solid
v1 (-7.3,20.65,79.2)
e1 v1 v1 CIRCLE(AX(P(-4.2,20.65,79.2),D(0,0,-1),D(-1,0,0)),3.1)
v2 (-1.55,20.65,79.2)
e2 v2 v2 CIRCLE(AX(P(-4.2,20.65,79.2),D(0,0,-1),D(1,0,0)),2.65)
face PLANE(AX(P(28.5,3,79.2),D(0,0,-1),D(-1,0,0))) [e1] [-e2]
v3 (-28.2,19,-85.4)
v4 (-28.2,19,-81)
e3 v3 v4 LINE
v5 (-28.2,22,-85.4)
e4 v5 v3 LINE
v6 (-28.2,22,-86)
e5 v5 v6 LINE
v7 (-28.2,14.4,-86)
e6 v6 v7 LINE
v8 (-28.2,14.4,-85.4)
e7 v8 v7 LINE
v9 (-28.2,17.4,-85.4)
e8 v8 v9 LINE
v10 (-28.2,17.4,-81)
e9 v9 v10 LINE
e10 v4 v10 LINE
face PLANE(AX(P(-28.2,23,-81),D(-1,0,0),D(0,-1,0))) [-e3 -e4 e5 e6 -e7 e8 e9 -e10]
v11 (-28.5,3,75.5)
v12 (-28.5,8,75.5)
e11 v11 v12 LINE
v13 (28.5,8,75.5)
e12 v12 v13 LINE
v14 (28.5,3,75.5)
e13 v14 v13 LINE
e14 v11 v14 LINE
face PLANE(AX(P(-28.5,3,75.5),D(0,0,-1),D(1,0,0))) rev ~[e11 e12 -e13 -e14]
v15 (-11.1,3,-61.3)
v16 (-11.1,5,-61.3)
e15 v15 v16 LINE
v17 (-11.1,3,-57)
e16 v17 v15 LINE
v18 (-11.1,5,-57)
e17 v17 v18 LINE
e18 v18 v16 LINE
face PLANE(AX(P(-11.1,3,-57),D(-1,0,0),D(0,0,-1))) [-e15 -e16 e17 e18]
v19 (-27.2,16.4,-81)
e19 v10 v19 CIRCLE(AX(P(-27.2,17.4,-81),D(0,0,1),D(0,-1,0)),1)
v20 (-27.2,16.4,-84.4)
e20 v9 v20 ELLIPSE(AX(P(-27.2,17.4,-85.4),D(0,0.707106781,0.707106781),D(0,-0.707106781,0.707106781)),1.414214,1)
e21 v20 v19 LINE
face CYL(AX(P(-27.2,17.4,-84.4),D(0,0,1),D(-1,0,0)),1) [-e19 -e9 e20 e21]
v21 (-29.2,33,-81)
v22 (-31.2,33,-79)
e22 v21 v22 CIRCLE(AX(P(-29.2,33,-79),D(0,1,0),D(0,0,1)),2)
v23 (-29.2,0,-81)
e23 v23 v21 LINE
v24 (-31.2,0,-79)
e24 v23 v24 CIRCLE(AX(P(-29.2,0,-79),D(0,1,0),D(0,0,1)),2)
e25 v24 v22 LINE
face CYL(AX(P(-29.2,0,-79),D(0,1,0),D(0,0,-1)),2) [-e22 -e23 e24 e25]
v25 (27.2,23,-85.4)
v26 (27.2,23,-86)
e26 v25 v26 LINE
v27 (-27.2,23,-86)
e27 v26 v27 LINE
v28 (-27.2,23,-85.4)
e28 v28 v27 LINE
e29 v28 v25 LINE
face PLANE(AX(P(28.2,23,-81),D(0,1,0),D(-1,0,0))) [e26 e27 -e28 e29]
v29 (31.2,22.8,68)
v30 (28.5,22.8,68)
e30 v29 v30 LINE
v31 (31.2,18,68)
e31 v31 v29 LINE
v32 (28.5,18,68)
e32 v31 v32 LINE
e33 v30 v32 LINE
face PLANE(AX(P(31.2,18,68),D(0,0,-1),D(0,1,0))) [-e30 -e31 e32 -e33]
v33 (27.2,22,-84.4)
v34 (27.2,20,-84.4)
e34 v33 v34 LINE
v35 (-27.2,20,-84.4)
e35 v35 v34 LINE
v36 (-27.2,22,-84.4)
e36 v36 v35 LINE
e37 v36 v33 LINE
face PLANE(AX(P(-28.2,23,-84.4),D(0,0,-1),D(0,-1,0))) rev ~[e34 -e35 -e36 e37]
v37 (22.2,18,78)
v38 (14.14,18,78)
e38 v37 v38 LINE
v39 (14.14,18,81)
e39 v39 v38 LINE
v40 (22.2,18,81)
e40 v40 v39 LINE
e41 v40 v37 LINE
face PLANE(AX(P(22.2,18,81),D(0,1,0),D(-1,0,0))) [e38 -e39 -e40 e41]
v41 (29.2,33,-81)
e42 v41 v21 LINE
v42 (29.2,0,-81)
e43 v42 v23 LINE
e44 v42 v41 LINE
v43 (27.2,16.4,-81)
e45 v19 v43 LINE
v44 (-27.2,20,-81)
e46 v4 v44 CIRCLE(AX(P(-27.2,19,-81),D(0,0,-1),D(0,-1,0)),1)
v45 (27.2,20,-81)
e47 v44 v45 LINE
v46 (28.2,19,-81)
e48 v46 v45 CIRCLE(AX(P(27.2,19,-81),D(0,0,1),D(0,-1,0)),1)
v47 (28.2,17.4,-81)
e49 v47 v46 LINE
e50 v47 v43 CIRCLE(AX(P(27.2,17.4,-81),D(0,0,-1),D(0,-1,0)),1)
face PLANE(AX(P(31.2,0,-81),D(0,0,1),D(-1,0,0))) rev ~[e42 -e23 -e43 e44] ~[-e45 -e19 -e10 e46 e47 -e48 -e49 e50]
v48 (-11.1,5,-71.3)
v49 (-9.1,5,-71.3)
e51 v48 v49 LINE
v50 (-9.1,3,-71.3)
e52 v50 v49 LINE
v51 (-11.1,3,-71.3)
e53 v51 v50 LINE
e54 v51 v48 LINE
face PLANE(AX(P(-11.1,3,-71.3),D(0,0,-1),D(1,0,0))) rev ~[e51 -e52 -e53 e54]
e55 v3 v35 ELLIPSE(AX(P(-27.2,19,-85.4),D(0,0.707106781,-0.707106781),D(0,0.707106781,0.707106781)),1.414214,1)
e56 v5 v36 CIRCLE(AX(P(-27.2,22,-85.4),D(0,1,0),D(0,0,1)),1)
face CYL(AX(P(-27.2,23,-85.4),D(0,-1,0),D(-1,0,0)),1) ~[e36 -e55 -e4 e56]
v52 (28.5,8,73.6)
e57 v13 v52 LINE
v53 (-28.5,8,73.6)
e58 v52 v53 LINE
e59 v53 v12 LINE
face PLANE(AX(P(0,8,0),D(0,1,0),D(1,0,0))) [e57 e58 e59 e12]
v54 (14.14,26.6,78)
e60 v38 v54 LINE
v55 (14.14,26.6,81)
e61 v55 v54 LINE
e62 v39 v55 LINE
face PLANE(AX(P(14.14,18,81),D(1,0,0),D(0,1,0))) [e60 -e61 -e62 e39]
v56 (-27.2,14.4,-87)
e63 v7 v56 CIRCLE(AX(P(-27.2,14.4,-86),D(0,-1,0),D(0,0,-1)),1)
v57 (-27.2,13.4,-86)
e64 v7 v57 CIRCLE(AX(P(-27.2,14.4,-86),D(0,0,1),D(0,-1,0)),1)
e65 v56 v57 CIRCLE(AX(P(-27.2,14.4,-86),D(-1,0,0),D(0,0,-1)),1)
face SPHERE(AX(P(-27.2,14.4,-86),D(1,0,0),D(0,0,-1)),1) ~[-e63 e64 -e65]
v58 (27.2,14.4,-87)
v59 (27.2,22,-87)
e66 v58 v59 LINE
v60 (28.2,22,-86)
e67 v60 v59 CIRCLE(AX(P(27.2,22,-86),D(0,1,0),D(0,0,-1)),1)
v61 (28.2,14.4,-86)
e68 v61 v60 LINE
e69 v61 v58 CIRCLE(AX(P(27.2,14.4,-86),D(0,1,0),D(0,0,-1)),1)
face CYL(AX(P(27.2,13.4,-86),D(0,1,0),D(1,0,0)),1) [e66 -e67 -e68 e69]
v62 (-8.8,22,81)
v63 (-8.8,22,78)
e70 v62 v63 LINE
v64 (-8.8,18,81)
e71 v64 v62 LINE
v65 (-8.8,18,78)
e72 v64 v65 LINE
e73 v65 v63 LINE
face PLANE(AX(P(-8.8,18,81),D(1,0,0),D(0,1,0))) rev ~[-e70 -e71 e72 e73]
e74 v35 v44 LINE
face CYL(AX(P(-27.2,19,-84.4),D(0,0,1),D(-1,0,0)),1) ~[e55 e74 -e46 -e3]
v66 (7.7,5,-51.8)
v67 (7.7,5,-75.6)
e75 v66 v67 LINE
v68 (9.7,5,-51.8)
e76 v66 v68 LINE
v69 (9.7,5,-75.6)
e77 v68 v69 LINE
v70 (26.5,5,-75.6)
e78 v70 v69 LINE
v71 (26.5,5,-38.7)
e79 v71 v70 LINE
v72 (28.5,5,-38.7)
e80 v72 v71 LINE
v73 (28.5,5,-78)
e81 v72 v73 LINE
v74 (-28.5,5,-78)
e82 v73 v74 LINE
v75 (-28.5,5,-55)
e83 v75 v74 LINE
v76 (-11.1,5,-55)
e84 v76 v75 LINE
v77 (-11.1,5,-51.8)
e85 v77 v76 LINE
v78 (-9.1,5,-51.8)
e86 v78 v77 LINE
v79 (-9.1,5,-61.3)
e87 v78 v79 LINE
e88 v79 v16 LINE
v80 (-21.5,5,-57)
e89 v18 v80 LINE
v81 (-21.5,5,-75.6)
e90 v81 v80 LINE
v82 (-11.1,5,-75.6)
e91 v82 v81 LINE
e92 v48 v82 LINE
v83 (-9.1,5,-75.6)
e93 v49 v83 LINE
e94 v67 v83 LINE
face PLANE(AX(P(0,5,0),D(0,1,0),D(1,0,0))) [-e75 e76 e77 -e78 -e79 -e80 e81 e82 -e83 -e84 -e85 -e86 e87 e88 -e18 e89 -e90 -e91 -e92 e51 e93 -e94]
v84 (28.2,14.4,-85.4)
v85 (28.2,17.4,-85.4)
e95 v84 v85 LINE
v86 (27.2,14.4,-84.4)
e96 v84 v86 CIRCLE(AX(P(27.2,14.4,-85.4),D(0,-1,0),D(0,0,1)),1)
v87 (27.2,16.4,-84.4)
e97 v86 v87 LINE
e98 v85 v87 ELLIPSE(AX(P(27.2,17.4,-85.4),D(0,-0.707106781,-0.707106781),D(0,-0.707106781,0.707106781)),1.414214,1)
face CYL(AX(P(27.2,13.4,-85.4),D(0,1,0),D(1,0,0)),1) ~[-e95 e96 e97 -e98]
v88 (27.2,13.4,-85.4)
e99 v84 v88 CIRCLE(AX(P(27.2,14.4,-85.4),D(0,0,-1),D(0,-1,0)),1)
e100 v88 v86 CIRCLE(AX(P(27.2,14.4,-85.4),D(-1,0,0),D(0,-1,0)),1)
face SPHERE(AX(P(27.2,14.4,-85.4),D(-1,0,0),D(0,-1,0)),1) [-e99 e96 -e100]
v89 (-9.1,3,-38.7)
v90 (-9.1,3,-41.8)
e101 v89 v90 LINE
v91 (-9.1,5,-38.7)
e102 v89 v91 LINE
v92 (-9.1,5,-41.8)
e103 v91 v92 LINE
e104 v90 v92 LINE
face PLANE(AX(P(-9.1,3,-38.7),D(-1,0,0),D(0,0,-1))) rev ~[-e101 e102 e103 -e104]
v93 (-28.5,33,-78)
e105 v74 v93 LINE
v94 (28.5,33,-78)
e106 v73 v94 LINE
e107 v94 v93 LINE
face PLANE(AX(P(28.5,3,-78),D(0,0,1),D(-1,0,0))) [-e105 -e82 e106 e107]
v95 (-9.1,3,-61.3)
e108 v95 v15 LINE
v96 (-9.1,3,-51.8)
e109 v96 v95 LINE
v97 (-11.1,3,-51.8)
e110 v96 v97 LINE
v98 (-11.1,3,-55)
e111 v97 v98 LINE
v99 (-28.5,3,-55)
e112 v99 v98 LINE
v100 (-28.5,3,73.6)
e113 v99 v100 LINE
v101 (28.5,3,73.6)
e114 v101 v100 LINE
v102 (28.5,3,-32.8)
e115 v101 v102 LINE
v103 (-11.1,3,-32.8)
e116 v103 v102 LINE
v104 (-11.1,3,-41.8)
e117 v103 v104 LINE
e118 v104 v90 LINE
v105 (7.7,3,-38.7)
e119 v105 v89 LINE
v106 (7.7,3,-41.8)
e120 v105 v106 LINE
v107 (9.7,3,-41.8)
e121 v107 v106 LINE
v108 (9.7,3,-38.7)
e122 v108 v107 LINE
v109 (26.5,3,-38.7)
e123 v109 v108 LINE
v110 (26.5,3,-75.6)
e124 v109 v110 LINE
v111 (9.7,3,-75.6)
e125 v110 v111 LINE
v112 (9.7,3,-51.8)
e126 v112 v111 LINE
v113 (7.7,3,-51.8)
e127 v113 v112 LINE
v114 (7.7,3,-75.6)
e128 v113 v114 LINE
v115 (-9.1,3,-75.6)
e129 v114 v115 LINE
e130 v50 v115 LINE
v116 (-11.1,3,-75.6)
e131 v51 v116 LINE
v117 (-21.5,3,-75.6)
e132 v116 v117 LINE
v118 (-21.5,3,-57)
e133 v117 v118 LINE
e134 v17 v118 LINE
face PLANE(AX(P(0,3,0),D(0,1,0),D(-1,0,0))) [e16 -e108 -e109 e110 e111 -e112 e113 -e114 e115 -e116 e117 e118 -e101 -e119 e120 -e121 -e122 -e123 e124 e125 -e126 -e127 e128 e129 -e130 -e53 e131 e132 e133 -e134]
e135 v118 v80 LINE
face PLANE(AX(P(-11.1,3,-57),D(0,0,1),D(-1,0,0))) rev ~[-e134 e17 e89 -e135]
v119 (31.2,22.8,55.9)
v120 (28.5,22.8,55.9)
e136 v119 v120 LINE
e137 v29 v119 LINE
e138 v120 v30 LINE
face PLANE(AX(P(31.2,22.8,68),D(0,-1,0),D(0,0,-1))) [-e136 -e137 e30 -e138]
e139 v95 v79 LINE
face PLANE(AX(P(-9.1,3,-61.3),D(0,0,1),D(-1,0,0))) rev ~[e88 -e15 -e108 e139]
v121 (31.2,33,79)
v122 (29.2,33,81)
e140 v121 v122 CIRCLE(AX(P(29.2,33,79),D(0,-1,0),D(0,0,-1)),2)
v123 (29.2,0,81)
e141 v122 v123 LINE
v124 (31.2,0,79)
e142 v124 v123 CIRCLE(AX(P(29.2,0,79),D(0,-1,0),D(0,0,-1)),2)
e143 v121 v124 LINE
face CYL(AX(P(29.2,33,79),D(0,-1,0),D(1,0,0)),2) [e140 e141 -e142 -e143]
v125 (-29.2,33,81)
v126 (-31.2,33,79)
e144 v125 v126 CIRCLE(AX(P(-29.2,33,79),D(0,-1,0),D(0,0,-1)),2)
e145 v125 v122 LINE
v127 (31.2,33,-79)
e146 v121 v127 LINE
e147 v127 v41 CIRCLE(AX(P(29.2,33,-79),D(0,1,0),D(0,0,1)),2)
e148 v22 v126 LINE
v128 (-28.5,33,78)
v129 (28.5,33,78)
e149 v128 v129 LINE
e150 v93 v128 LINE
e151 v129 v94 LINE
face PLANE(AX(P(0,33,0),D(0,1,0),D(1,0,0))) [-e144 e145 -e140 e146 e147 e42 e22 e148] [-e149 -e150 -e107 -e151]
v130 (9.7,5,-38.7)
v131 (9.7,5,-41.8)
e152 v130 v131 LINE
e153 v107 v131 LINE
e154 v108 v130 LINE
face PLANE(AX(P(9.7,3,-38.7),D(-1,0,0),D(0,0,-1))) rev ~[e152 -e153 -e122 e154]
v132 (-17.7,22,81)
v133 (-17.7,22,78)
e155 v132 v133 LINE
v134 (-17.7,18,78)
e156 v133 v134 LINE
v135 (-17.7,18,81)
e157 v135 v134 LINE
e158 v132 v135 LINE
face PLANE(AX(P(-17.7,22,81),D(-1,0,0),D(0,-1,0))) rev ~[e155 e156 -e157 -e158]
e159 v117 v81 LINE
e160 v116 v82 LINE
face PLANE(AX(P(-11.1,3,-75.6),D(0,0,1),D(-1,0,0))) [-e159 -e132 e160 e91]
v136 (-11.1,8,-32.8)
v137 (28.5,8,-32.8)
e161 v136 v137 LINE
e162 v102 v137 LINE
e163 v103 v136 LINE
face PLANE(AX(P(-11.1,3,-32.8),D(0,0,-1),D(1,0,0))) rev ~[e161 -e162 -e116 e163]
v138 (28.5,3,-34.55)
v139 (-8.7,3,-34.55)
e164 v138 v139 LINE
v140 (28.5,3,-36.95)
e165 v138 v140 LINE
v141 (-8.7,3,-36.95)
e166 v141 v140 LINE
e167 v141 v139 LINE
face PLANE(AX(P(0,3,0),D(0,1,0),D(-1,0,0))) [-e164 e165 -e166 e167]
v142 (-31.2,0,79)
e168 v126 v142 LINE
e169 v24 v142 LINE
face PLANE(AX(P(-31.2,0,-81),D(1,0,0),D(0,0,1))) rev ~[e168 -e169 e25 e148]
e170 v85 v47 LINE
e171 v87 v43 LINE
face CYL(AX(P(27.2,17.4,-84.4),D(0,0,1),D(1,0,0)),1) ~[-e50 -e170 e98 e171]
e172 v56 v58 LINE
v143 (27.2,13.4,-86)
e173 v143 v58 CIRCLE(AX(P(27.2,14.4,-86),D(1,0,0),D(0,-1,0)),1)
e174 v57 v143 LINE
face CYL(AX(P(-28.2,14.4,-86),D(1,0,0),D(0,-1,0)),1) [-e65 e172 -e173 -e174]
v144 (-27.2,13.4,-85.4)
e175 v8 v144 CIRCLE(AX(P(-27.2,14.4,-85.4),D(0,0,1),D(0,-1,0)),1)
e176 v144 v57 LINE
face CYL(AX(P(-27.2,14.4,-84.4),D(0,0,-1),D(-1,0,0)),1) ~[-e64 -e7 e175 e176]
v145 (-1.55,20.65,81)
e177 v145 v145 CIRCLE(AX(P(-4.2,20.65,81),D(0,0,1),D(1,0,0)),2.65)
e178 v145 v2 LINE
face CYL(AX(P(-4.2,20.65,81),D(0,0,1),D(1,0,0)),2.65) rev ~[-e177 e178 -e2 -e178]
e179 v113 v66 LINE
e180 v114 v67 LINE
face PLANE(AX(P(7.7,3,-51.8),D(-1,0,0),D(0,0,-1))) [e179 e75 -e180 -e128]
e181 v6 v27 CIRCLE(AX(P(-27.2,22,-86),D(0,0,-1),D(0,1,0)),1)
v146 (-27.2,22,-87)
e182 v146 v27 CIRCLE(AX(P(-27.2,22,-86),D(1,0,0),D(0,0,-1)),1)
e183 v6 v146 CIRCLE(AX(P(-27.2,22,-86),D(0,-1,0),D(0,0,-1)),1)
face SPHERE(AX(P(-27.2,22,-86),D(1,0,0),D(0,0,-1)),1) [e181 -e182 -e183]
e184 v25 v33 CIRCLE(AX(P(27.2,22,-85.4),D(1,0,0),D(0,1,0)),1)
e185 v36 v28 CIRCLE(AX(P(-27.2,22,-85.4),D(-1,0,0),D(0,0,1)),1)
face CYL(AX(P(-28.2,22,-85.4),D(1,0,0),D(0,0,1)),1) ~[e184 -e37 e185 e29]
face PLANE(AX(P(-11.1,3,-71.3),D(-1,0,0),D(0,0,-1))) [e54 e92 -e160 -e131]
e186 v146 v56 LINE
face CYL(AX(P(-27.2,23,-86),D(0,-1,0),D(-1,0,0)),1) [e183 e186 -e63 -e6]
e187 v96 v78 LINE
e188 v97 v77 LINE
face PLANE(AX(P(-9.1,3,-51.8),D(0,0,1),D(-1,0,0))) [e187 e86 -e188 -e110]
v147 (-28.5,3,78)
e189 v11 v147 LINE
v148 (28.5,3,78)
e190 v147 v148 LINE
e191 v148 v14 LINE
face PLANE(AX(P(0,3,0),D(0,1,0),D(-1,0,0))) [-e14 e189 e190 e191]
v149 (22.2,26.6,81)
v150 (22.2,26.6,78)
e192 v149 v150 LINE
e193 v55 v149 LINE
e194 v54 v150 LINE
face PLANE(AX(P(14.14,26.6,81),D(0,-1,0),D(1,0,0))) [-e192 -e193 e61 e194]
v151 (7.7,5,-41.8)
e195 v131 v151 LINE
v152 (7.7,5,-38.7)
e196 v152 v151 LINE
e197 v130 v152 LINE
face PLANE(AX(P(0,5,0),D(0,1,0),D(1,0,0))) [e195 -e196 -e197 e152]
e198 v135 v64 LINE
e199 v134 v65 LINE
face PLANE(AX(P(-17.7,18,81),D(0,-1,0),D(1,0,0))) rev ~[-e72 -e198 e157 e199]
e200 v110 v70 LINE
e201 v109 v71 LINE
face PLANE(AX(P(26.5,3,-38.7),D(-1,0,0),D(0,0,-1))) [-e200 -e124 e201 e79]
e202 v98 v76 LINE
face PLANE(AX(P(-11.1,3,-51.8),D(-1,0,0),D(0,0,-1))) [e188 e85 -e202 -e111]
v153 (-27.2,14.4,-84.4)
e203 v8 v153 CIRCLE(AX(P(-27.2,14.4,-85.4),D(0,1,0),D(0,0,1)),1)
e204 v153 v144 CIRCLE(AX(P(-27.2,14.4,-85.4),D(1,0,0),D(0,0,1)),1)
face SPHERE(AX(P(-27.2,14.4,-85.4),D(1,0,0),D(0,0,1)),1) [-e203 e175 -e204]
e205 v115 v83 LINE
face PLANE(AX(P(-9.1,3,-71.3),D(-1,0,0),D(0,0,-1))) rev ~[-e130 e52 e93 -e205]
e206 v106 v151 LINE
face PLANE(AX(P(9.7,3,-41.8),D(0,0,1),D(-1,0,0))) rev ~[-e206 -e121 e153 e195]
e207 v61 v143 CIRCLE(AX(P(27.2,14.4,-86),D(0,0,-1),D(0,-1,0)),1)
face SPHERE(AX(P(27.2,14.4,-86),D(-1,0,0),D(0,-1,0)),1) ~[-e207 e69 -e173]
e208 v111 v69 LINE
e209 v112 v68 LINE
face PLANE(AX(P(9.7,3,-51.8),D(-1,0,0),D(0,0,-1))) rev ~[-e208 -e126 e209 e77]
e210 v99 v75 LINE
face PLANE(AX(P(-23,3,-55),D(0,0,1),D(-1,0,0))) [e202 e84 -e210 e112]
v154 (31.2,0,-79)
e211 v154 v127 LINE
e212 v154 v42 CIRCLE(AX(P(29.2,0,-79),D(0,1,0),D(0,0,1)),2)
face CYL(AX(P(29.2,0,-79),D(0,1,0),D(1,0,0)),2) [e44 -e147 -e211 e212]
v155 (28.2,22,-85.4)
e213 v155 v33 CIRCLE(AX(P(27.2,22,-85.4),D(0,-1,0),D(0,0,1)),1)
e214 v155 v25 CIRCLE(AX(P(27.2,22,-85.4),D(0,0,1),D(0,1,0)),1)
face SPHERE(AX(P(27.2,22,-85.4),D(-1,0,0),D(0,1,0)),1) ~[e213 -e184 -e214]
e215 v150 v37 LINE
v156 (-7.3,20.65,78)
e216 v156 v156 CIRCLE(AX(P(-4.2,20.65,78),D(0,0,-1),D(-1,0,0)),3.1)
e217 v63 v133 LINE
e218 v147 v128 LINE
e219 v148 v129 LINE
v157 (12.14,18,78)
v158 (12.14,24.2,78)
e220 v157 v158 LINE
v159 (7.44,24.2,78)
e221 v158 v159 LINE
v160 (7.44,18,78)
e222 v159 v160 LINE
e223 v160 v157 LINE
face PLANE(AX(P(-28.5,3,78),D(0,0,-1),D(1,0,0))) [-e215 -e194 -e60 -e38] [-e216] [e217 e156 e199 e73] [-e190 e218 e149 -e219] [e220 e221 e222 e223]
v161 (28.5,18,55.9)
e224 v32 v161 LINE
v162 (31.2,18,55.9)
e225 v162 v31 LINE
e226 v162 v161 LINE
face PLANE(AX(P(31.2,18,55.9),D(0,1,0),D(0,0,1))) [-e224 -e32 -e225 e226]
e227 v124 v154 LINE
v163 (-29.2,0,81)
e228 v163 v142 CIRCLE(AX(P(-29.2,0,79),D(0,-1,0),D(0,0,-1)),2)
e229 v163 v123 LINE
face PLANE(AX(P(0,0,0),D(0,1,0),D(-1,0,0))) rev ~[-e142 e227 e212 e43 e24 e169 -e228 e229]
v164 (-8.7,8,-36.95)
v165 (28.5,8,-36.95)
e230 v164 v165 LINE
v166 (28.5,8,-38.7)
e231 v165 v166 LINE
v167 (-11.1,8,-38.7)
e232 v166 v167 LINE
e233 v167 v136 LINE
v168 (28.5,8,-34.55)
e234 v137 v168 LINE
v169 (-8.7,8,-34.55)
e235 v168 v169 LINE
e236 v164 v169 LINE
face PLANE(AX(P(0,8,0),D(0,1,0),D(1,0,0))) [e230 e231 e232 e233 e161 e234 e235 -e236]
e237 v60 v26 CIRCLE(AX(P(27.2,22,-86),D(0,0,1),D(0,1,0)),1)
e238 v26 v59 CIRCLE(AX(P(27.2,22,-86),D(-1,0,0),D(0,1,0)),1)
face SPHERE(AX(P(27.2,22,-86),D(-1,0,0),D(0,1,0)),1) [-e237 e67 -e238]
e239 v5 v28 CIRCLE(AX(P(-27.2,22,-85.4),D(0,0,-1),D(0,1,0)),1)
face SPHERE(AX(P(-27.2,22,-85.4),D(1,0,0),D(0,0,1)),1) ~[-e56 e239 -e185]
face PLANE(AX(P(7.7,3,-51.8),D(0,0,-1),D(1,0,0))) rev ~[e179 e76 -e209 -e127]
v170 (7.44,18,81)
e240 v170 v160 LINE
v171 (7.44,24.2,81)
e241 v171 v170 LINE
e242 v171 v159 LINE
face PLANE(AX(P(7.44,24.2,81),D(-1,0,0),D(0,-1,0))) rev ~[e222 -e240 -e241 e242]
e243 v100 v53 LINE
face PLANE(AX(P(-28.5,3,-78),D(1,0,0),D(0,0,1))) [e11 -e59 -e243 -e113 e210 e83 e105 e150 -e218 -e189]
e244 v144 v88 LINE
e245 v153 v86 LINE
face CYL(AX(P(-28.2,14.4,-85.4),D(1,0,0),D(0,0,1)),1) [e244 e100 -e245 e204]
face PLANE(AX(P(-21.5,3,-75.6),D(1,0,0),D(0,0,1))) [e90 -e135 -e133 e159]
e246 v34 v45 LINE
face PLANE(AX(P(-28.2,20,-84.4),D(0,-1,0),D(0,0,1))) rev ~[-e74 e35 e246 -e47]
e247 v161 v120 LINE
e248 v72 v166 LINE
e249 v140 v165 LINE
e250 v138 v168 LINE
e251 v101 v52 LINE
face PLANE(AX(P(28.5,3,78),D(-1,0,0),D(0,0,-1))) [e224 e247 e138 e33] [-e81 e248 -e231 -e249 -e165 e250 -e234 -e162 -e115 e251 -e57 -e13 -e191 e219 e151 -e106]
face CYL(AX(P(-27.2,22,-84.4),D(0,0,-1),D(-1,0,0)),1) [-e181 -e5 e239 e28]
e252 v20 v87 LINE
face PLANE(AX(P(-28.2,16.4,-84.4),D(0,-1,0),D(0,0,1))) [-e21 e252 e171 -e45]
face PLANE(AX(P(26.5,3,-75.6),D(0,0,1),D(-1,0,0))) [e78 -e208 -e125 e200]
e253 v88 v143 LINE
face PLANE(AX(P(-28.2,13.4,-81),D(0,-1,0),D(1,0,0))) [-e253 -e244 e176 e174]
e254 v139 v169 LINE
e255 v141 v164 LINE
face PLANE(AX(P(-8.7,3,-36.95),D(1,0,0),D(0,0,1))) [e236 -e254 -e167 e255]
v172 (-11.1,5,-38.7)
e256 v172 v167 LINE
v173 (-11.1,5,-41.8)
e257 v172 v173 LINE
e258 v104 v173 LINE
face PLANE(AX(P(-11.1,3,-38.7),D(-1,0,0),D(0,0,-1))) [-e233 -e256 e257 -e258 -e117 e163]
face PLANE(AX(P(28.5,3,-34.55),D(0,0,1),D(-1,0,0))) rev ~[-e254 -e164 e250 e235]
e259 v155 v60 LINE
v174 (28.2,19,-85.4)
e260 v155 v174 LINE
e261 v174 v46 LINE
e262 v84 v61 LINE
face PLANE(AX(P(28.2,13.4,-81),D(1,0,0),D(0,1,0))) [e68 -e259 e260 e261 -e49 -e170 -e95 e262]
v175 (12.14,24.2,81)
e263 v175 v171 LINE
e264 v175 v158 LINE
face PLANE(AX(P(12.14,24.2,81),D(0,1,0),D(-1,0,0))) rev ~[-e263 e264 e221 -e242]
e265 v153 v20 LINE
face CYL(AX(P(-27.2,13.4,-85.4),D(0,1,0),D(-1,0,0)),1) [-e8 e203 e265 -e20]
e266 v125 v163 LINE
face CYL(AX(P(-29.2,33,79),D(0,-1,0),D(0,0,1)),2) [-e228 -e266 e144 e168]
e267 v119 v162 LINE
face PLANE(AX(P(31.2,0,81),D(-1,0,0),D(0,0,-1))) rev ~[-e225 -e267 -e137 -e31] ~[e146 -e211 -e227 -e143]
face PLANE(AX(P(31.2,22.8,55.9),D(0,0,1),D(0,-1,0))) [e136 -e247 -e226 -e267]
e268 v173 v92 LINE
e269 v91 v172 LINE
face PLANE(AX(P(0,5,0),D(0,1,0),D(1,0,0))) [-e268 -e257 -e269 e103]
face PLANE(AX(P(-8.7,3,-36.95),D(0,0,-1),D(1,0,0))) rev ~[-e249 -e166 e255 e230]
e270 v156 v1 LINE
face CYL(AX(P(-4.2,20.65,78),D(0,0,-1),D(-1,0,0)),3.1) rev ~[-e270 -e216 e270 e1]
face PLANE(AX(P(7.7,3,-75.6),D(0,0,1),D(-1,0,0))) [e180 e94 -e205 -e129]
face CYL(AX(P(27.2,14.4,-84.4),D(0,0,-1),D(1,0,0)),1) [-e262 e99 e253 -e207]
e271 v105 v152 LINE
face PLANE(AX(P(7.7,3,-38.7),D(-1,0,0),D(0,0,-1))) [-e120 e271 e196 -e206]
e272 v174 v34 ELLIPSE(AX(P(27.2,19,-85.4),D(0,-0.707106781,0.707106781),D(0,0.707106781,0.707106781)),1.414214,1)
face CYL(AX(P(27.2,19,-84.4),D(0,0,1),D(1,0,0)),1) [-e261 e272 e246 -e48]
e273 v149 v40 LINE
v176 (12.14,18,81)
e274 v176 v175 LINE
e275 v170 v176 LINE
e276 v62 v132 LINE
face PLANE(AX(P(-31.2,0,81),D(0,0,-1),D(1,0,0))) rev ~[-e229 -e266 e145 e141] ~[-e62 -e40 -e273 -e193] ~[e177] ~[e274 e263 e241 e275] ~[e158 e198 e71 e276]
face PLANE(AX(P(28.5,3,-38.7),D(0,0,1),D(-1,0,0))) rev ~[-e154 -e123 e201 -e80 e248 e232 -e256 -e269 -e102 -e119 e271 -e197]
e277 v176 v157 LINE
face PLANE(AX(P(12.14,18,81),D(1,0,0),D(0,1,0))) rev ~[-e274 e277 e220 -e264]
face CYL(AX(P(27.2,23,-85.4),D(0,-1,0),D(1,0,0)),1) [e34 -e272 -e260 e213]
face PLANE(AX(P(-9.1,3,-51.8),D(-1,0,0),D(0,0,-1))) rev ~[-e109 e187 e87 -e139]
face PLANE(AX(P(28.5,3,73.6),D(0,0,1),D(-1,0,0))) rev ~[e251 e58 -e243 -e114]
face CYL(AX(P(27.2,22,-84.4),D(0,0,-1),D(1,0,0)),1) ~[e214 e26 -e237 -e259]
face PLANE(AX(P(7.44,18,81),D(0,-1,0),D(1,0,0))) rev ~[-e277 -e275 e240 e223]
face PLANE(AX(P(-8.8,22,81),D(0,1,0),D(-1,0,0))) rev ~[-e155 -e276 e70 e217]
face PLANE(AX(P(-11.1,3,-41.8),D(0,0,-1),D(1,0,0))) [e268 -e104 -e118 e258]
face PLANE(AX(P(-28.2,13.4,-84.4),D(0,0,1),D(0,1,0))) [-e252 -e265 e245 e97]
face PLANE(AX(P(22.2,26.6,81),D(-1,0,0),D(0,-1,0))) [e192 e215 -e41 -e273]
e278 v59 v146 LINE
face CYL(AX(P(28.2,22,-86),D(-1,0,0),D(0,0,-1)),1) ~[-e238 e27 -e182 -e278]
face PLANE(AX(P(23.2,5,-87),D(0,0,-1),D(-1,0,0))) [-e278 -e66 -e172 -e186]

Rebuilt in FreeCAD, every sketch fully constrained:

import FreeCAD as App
import Part
import Sketcher
Q = App.Units.Quantity


def edges_at(feature, points):
    """Names of the edges that pass closest to the given points."""
    edges = feature.Shape.Edges
    near = lambda p: min(range(len(edges)), key=lambda i: edges[i].distToShape(Part.Vertex(*p))[0])
    return sorted({f"Edge{near(p) + 1}" for p in points})


def add_polygon(sketch, points):
    """Adds a closed chain of lines whose ends are joined by coincident constraints."""
    first, n = sketch.GeometryCount, len(points)
    for a, b in zip(points, points[1:] + points[:1]):
        sketch.addGeometry(Part.LineSegment(App.Vector(*a, 0), App.Vector(*b, 0)), False)
    for i in range(n):
        sketch.addConstraint(Sketcher.Constraint("Coincident", first + i, 2, first + (i + 1) % n, 1))

doc = App.newDocument("Part")
body = doc.addObject("PartDesign::Body", "Body")

sketch1 = body.newObject("Sketcher::SketchObject", "Sketch")
sketch1.AttachmentSupport = (doc.getObject("XZ_Plane"), [""])
sketch1.MapMode = "FlatFace"
add_polygon(sketch1, [(31, 81), (31, -81), (-31, -81), (-31, 81)])
sketch1.addConstraint([
    Sketcher.Constraint("Vertical", 0),
    Sketcher.Constraint("Horizontal", 1),
    Sketcher.Constraint("Vertical", 2),
    Sketcher.Constraint("Horizontal", 3),
    Sketcher.Constraint("Symmetric", 0, 2, 2, 2, -1, 1),
    Sketcher.Constraint("DistanceY", 0, 2, 0, 1, Q("162 mm")),
    Sketcher.Constraint("DistanceX", 1, 2, 1, 1, Q("62.4 mm")),
])
pad1 = body.newObject("PartDesign::Pad", "Pad")
pad1.Profile = sketch1
pad1.Length = 3
pad1.Reversed = True

sketch2 = body.newObject("Sketcher::SketchObject", "Sketch001")
sketch2.AttachmentSupport = (doc.getObject("XZ_Plane"), [""])
sketch2.MapMode = "FlatFace"
sketch2.AttachmentOffset = App.Placement(App.Vector(0, 0, -3), App.Rotation())
add_polygon(sketch2, [(31, -81), (-31, -81), (-31, 81), (31, 81)])
add_polygon(sketch2, [(-28, -78), (28, -78), (28, 78), (-28, 78)])
sketch2.addConstraint([
    Sketcher.Constraint("Horizontal", 0),
    Sketcher.Constraint("Vertical", 1),
    Sketcher.Constraint("Horizontal", 2),
    Sketcher.Constraint("Vertical", 3),
    Sketcher.Constraint("Horizontal", 4),
    Sketcher.Constraint("Vertical", 5),
    Sketcher.Constraint("Horizontal", 6),
    Sketcher.Constraint("Vertical", 7),
    Sketcher.Constraint("Symmetric", 0, 2, 2, 2, -1, 1),
    Sketcher.Constraint("Symmetric", 4, 2, 6, 2, -1, 1),
    Sketcher.Constraint("DistanceY", 3, 2, 4, 2, Q("3 mm")),
    Sketcher.Constraint("DistanceX", 4, 2, 3, 2, Q("2.7 mm")),
    Sketcher.Constraint("DistanceX", 4, 1, 4, 2, Q("57 mm")),
    Sketcher.Constraint("DistanceY", 1, 1, 1, 2, Q("162 mm")),
])
pad2 = body.newObject("PartDesign::Pad", "Pad001")
pad2.Profile = sketch2
pad2.Length = 30
pad2.Reversed = True
doc.recompute()

fillet = body.newObject("PartDesign::Fillet", "Fillet")
fillet.Base = (pad2, edges_at(pad2, [
    (31.2, 16.5, 81),
    (31.2, 16.5, -81),
    (-31.2, 16.5, 81),
    (-31.2, 16.5, -81),
]))
fillet.Radius = 2

sketch3 = body.newObject("Sketcher::SketchObject", "Sketch002")
sketch3.AttachmentSupport = (doc.getObject("XZ_Plane"), [""])
sketch3.MapMode = "FlatFace"
sketch3.AttachmentOffset = App.Placement(App.Vector(0, 0, -3), App.Rotation())
add_polygon(sketch3, [(28.5, -37), (28.5, -38.7), (-11.1, -38.7), (-11.1, -32.8), (28.5, -32.8), (28.5, -34.5), (-8.7, -34.5), (-8.7, -37)])
add_polygon(sketch3, [(28.5, 73.6), (-28.5, 73.6), (-28.5, 75.5), (28.5, 75.5)])
sketch3.addConstraint([
    Sketcher.Constraint("Vertical", 0),
    Sketcher.Constraint("Horizontal", 1),
    Sketcher.Constraint("Vertical", 2),
    Sketcher.Constraint("Horizontal", 3),
    Sketcher.Constraint("Vertical", 4),
    Sketcher.Constraint("Horizontal", 5),
    Sketcher.Constraint("Vertical", 6),
    Sketcher.Constraint("Horizontal", 7),
    Sketcher.Constraint("Horizontal", 8),
    Sketcher.Constraint("Vertical", 9),
    Sketcher.Constraint("Horizontal", 10),
    Sketcher.Constraint("Vertical", 11),
    Sketcher.Constraint("Vertical", 0, 2, 3, 2),
    Sketcher.Constraint("Vertical", 7, 2, 10, 2),
    Sketcher.Constraint("Equal", 0, 4),
    Sketcher.Constraint("DistanceY", 6, 2, 6, 1, Q("2.4 mm")),
    Sketcher.Constraint("DistanceY", 9, 1, 9, 2, Q("1.9 mm")),
    Sketcher.Constraint("DistanceY", 0, 2, 0, 1, Q("1.75 mm")),
    Sketcher.Constraint("DistanceX", 2, 2, 5, 2, Q("2.4 mm")),
    Sketcher.Constraint("DistanceX", 8, 2, 2, 2, Q("17.4 mm")),
    Sketcher.Constraint("DistanceY", 2, 2, 8, 2, Q("106.4 mm")),
    Sketcher.Constraint("DistanceX", 8, 2, 8, 1, Q("57 mm")),
    Sketcher.Constraint("DistanceX", -1, 1, 0, 2, Q("28.5 mm")),
    Sketcher.Constraint("DistanceY", 0, 2, -1, 1, Q("38.7 mm")),
])
pad3 = body.newObject("PartDesign::Pad", "Pad002")
pad3.Profile = sketch3
pad3.Length = 5
pad3.Reversed = True

sketch4 = body.newObject("Sketcher::SketchObject", "Sketch003")
sketch4.AttachmentSupport = (doc.getObject("XZ_Plane"), [""])
sketch4.MapMode = "FlatFace"
sketch4.AttachmentOffset = App.Placement(App.Vector(0, 0, -3), App.Rotation())
add_polygon(sketch4, [(-28.5, -55), (-11.1, -55), (-11.1, -51.8), (-9.1, -51.8), (-9.1, -61.3), (-11.1, -61.3), (-11.1, -57), (-21.5, -57), (-21.5, -75.6), (-11.1, -75.6), (-11.1, -71.3), (-9.1, -71.3), (-9.1, -75.6), (7.7, -75.6), (7.7, -51.8), (9.7, -51.8), (9.7, -75.6), (26.5, -75.6), (26.5, -38.7), (28.5, -38.7), (28.5, -78), (-28.5, -78)])
add_polygon(sketch4, [(-11.1, -41.8), (-11.1, -38.7), (-9.1, -38.7), (-9.1, -41.8)])
add_polygon(sketch4, [(7.7, -41.8), (7.7, -38.7), (9.7, -38.7), (9.7, -41.8)])
sketch4.addConstraint([
    Sketcher.Constraint("Horizontal", 0),
    Sketcher.Constraint("Vertical", 1),
    Sketcher.Constraint("Horizontal", 2),
    Sketcher.Constraint("Vertical", 3),
    Sketcher.Constraint("Horizontal", 4),
    Sketcher.Constraint("Vertical", 5),
    Sketcher.Constraint("Horizontal", 6),
    Sketcher.Constraint("Vertical", 7),
    Sketcher.Constraint("Horizontal", 8),
    Sketcher.Constraint("Vertical", 9),
    Sketcher.Constraint("Horizontal", 10),
    Sketcher.Constraint("Vertical", 11),
    Sketcher.Constraint("Horizontal", 12),
    Sketcher.Constraint("Vertical", 13),
    Sketcher.Constraint("Horizontal", 14),
    Sketcher.Constraint("Vertical", 15),
    Sketcher.Constraint("Horizontal", 16),
    Sketcher.Constraint("Vertical", 17),
    Sketcher.Constraint("Horizontal", 18),
    Sketcher.Constraint("Vertical", 19),
    Sketcher.Constraint("Horizontal", 20),
    Sketcher.Constraint("Vertical", 21),
    Sketcher.Constraint("Vertical", 22),
    Sketcher.Constraint("Horizontal", 23),
    Sketcher.Constraint("Vertical", 24),
    Sketcher.Constraint("Horizontal", 25),
    Sketcher.Constraint("Vertical", 26),
    Sketcher.Constraint("Horizontal", 27),
    Sketcher.Constraint("Vertical", 28),
    Sketcher.Constraint("Horizontal", 29),
    Sketcher.Constraint("Horizontal", 8, 2, 11, 2),
    Sketcher.Constraint("Horizontal", 2, 2, 13, 2),
    Sketcher.Constraint("Horizontal", 12, 2, 15, 2),
    Sketcher.Constraint("Horizontal", 18, 2, 22, 2),
    Sketcher.Constraint("Horizontal", 23, 2, 26, 2),
    Sketcher.Constraint("Horizontal", 25, 2, 28, 2),
    Sketcher.Constraint("Vertical", 1, 2, 4, 2),
    Sketcher.Constraint("Vertical", 5, 2, 8, 2),
    Sketcher.Constraint("Vertical", 3, 2, 10, 2),
    Sketcher.Constraint("Vertical", 9, 2, 22, 2),
    Sketcher.Constraint("Vertical", 11, 2, 23, 2),
    Sketcher.Constraint("Vertical", 13, 2, 26, 2),
    Sketcher.Constraint("Vertical", 15, 2, 27, 2),
    Sketcher.Constraint("Equal", 10, 14),
    Sketcher.Constraint("Equal", 12, 16),
    Sketcher.Constraint("Equal", 14, 18),
    Sketcher.Constraint("Equal", 5, 9),
    Sketcher.Constraint("DistanceX", 2, 1, 2, 2, Q("2 mm")),
    Sketcher.Constraint("DistanceX", 6, 2, 6, 1, Q("10.4 mm")),
    Sketcher.Constraint("DistanceX", 12, 1, 12, 2, Q("16.8 mm")),
    Sketcher.Constraint("DistanceY", 5, 1, 5, 2, Q("4.3 mm")),
    Sketcher.Constraint("DistanceY", 7, 2, 7, 1, Q("18.6 mm")),
    Sketcher.Constraint("DistanceY", 17, 1, 17, 2, Q("36.9 mm")),
    Sketcher.Constraint("DistanceY", 22, 1, 22, 2, Q("3.1 mm")),
    Sketcher.Constraint("DistanceY", 5, 2, 0, 2, Q("2 mm")),
    Sketcher.Constraint("DistanceY", 2, 2, 24, 2, Q("10 mm")),
    Sketcher.Constraint("DistanceY", 19, 2, 16, 2, Q("2.4 mm")),
    Sketcher.Constraint("DistanceX", 20, 2, 20, 1, Q("57 mm")),
    Sketcher.Constraint("DistanceY", 0, 2, -1, 1, Q("55 mm")),
    Sketcher.Constraint("DistanceX", 0, 2, -1, 1, Q("11.1 mm")),
])
pad4 = body.newObject("PartDesign::Pad", "Pad003")
pad4.Profile = sketch4
pad4.Length = 2
pad4.Reversed = True

sketch5 = body.newObject("Sketcher::SketchObject", "Sketch004")
sketch5.AttachmentSupport = (doc.getObject("XY_Plane"), [""])
sketch5.MapMode = "FlatFace"
sketch5.AttachmentOffset = App.Placement(App.Vector(0, 0, 81), App.Rotation())
add_polygon(sketch5, [(-17.7, 22), (-17.7, 18), (-8.8, 18), (-8.8, 22)])
add_polygon(sketch5, [(14.1, 18), (22.2, 18), (22.2, 26.6), (14.1, 26.6)])
sketch5.addGeometry(Part.Circle(App.Vector(-4.2, 20.6, 0), App.Vector(0, 0, 1), 2.6), False)
add_polygon(sketch5, [(7.4, 24.2), (7.4, 18), (12.1, 18), (12.1, 24.2)])
sketch5.addConstraint([
    Sketcher.Constraint("Vertical", 0),
    Sketcher.Constraint("Horizontal", 1),
    Sketcher.Constraint("Vertical", 2),
    Sketcher.Constraint("Horizontal", 3),
    Sketcher.Constraint("Horizontal", 4),
    Sketcher.Constraint("Vertical", 5),
    Sketcher.Constraint("Horizontal", 6),
    Sketcher.Constraint("Vertical", 7),
    Sketcher.Constraint("Vertical", 9),
    Sketcher.Constraint("Horizontal", 10),
    Sketcher.Constraint("Vertical", 11),
    Sketcher.Constraint("Horizontal", 12),
    Sketcher.Constraint("Horizontal", 1, 2, 4, 2),
    Sketcher.Constraint("Horizontal", 7, 2, 9, 2),
    Sketcher.Constraint("Diameter", 8, Q("5.3 mm")),
    Sketcher.Constraint("DistanceY", 0, 2, 0, 1, Q("4 mm")),
    Sketcher.Constraint("DistanceX", 1, 1, 1, 2, Q("8.9 mm")),
    Sketcher.Constraint("DistanceX", 10, 1, 10, 2, Q("4.7 mm")),
    Sketcher.Constraint("DistanceY", 5, 1, 5, 2, Q("8.6 mm")),
    Sketcher.Constraint("DistanceY", 9, 2, 9, 1, Q("6.2 mm")),
    Sketcher.Constraint("DistanceY", -1, 1, 0, 2, Q("18 mm")),
    Sketcher.Constraint("DistanceX", 10, 2, 7, 2, Q("2 mm")),
    Sketcher.Constraint("DistanceX", 4, 1, 4, 2, Q("8.06 mm")),
    Sketcher.Constraint("DistanceX", 0, 2, 8, 3, Q("13.5 mm")),
    Sketcher.Constraint("DistanceX", 1, 2, 4, 2, Q("31 mm")),
    Sketcher.Constraint("DistanceX", 8, 3, -1, 1, Q("4.2 mm")),
    Sketcher.Constraint("DistanceY", -1, 1, 8, 3, Q("20.65 mm")),
])
pocket1 = body.newObject("PartDesign::Pocket", "Pocket")
pocket1.Profile = sketch5
pocket1.Length = 3

sketch6 = body.newObject("Sketcher::SketchObject", "Sketch005")
sketch6.AttachmentSupport = (doc.getObject("XY_Plane"), [""])
sketch6.MapMode = "FlatFace"
sketch6.AttachmentOffset = App.Placement(App.Vector(0, 0, 78), App.Rotation())
sketch6.addGeometry([
    Part.Circle(App.Vector(-4.2, 20.6, 0), App.Vector(0, 0, 1), 3.1),
    Part.Circle(App.Vector(-4.2, 20.6, 0), App.Vector(0, 0, 1), 2.6),
], False)
sketch6.addConstraint([
    Sketcher.Constraint("Coincident", 1, 3, 0, 3),
    Sketcher.Constraint("Diameter", 0, Q("6.2 mm")),
    Sketcher.Constraint("Diameter", 1, Q("5.3 mm")),
    Sketcher.Constraint("DistanceX", 0, 3, -1, 1, Q("4.2 mm")),
    Sketcher.Constraint("DistanceY", -1, 1, 0, 3, Q("20.65 mm")),
])
pocket2 = body.newObject("PartDesign::Pocket", "Pocket001")
pocket2.Profile = sketch6
pocket2.Length = 1.2
pocket2.Reversed = True

sketch7 = body.newObject("Sketcher::SketchObject", "Sketch006")
sketch7.AttachmentSupport = (doc.getObject("XY_Plane"), [""])
sketch7.MapMode = "FlatFace"
sketch7.AttachmentOffset = App.Placement(App.Vector(0, 0, -81), App.Rotation())
add_polygon(sketch7, [(-28, 23), (28, 23), (28, 13), (-28, 13)])
sketch7.addConstraint([
    Sketcher.Constraint("Horizontal", 0),
    Sketcher.Constraint("Vertical", 1),
    Sketcher.Constraint("Horizontal", 2),
    Sketcher.Constraint("Vertical", 3),
    Sketcher.Constraint("DistanceY", 1, 2, 1, 1, Q("9.6 mm")),
    Sketcher.Constraint("DistanceY", -1, 1, 0, 2, Q("23 mm")),
    Sketcher.Constraint("DistanceX", 0, 1, 0, 2, Q("56.4 mm")),
    Sketcher.Constraint("DistanceX", -1, 1, 0, 2, Q("28.2 mm")),
])
pad5 = body.newObject("PartDesign::Pad", "Pad004")
pad5.Profile = sketch7
pad5.Length = 6
pad5.Reversed = True

sketch8 = body.newObject("Sketcher::SketchObject", "Sketch007")
sketch8.AttachmentSupport = (doc.getObject("YZ_Plane"), [""])
sketch8.MapMode = "FlatFace"
sketch8.AttachmentOffset = App.Placement(App.Vector(0, 0, -28.2), App.Rotation())
add_polygon(sketch8, [(20, -81), (23, -81), (23, -84.4), (20, -84.4)])
add_polygon(sketch8, [(13.4, -81), (16.4, -81), (16.4, -84.4), (13.4, -84.4)])
sketch8.addConstraint([
    Sketcher.Constraint("Horizontal", 0),
    Sketcher.Constraint("Vertical", 1),
    Sketcher.Constraint("Horizontal", 2),
    Sketcher.Constraint("Vertical", 3),
    Sketcher.Constraint("Horizontal", 4),
    Sketcher.Constraint("Vertical", 5),
    Sketcher.Constraint("Horizontal", 6),
    Sketcher.Constraint("Vertical", 7),
    Sketcher.Constraint("Horizontal", 3, 2, 4, 2),
    Sketcher.Constraint("Horizontal", 2, 2, 5, 2),
    Sketcher.Constraint("Equal", 2, 4),
    Sketcher.Constraint("DistanceX", 0, 1, 0, 2, Q("3 mm")),
    Sketcher.Constraint("DistanceY", 1, 2, 1, 1, Q("3.4 mm")),
    Sketcher.Constraint("DistanceX", -1, 1, 0, 2, Q("23 mm")),
    Sketcher.Constraint("DistanceY", 0, 2, -1, 1, Q("81 mm")),
    Sketcher.Constraint("DistanceX", -1, 1, 4, 2, Q("16.4 mm")),
])
pocket3 = body.newObject("PartDesign::Pocket", "Pocket002")
pocket3.Profile = sketch8
pocket3.Length = 56.4
pocket3.Reversed = True
doc.recompute()

fillet2 = body.newObject("PartDesign::Fillet", "Fillet001")
fillet2.Base = (pocket3, edges_at(pocket3, [
    (0, 23, -87),
    (0, 23, -84.4),
    (0, 13.4, -87),
    (0, 13.4, -84.4),
    (-28.2, 16.4, -82.7),
    (-28.2, 20, -82.7),
    (28.2, 16.4, -82.7),
    (28.2, 20, -82.7),
    (-28.2, 18.2, -87),
    (-28.2, 21.5, -84.4),
    (-28.2, 14.9, -84.4),
    (-28.2, 23, -85.7),
    (-28.2, 13.4, -85.7),
    (28.2, 23, -85.7),
    (28.2, 13.4, -85.7),
    (28.2, 14.9, -84.4),
    (28.2, 18.2, -87),
    (28.2, 21.5, -84.4),
]))
fillet2.Radius = 1

sketch9 = body.newObject("Sketcher::SketchObject", "Sketch008")
sketch9.AttachmentSupport = (doc.getObject("YZ_Plane"), [""])
sketch9.MapMode = "FlatFace"
sketch9.AttachmentOffset = App.Placement(App.Vector(0, 0, 31.2), App.Rotation())
add_polygon(sketch9, [(22.8, 55.9), (22.8, 68), (18, 68), (18, 55.9)])
sketch9.addConstraint([
    Sketcher.Constraint("Vertical", 0),
    Sketcher.Constraint("Horizontal", 1),
    Sketcher.Constraint("Vertical", 2),
    Sketcher.Constraint("Horizontal", 3),
    Sketcher.Constraint("DistanceX", 1, 2, 1, 1, Q("4.8 mm")),
    Sketcher.Constraint("DistanceY", 0, 1, 0, 2, Q("12.1 mm")),
    Sketcher.Constraint("DistanceX", -1, 1, 1, 2, Q("18 mm")),
    Sketcher.Constraint("DistanceY", -1, 1, 0, 2, Q("68 mm")),
])
pocket4 = body.newObject("PartDesign::Pocket", "Pocket003")
pocket4.Profile = sketch9
pocket4.Length = 3

doc.recompute()
